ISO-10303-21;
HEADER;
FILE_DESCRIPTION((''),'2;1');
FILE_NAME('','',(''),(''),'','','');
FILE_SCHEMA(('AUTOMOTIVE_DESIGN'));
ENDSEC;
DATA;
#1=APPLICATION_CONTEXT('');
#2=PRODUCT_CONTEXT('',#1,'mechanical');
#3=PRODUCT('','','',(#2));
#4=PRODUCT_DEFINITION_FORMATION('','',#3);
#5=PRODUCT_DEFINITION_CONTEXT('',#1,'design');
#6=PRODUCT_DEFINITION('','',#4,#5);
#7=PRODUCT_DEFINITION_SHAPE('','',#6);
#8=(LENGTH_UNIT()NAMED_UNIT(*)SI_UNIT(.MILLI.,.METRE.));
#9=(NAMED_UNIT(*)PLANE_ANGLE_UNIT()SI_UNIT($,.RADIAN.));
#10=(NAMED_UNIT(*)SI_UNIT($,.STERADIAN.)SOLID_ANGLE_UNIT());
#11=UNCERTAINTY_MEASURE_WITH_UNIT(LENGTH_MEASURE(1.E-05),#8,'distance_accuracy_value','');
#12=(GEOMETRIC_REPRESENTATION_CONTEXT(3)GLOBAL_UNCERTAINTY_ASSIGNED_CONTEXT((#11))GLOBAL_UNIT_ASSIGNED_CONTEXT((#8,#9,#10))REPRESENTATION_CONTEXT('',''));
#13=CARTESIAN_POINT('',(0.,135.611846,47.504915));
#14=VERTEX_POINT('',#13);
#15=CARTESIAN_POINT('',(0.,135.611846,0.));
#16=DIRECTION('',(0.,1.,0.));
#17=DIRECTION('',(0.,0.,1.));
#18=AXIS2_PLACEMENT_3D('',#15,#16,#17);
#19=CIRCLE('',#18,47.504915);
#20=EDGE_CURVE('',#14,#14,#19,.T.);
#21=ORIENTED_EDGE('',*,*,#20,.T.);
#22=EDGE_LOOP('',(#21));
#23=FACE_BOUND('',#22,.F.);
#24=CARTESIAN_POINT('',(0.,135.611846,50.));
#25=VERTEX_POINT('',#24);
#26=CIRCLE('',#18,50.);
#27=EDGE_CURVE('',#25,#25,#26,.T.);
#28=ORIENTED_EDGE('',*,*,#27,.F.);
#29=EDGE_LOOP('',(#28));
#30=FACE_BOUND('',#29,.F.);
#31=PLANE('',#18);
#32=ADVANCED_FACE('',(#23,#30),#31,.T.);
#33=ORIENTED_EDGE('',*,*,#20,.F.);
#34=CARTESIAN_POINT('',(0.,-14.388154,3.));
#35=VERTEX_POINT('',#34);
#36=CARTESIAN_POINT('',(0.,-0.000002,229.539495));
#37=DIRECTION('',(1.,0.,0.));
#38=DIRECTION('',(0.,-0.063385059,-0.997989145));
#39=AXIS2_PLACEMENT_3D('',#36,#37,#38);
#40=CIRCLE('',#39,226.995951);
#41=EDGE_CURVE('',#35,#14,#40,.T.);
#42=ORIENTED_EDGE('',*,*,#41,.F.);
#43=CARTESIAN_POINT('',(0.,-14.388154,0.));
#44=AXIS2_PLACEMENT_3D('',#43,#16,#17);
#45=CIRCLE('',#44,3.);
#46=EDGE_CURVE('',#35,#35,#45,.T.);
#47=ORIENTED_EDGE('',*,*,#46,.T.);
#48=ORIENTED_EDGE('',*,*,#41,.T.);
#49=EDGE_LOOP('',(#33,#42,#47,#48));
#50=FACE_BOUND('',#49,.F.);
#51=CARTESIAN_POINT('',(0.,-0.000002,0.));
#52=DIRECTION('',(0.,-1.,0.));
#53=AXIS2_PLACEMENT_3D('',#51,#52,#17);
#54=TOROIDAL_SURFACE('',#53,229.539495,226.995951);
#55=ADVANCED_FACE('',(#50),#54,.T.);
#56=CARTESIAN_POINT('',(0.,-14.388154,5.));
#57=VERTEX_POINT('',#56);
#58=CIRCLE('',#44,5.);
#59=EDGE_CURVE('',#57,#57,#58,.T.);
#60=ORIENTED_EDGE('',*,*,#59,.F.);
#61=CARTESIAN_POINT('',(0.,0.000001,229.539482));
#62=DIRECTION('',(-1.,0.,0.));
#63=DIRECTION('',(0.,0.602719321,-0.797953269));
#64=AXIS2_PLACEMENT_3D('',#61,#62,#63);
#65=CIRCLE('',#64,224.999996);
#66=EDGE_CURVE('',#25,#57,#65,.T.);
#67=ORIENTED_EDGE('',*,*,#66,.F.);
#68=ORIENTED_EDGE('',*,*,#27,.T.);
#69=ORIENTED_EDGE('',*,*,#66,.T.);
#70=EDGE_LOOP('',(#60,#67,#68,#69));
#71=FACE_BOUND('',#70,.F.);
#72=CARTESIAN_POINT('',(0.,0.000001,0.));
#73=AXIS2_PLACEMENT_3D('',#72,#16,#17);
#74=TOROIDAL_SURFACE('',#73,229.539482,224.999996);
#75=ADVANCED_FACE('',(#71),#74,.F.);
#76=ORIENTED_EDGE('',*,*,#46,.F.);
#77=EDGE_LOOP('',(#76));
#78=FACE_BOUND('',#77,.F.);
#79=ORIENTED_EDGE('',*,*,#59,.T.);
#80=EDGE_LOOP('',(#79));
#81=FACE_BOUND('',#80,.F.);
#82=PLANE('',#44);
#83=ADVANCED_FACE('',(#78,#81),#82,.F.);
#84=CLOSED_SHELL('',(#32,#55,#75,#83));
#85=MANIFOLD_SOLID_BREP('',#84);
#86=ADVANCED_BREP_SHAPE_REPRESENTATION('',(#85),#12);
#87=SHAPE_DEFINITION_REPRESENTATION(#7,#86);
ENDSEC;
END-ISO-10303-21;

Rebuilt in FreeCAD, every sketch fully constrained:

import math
import FreeCAD as App
import Part
import Sketcher

V = App.Vector

doc = App.newDocument("Part")
body = doc.addObject("PartDesign::Body", "Body")

sketch1 = body.newObject("Sketcher::SketchObject", "Sketch")
sketch1.AttachmentSupport = (doc.getObject("YZ_Plane"), [""])
sketch1.MapMode = "FlatFace"
sketch1.addGeometry(Part.LineSegment(V(-14.4, 5, 0), V(-14.4, 3, 0)), False)
sketch1.addGeometry(Part.ArcOfCircle(Part.Circle(V(0, 229.5, 0), V(0, 0, 1), 227), math.radians(-94), math.radians(-53)), False)
sketch1.addGeometry(Part.LineSegment(V(135.6, 47.5, 0), V(135.6, 50, 0)), False)
sketch1.addGeometry(Part.ArcOfCircle(Part.Circle(V(0, 229.5, 0), V(0, 0, 1), 225), math.radians(-94), math.radians(-53)), False)
sketch1.addConstraint(Sketcher.Constraint("Coincident", 0, 2, 1, 1))
sketch1.addConstraint(Sketcher.Constraint("Coincident", 1, 2, 2, 1))
sketch1.addConstraint(Sketcher.Constraint("Coincident", 2, 2, 3, 2))
sketch1.addConstraint(Sketcher.Constraint("Coincident", 3, 1, 0, 1))
sketch1.addConstraint(Sketcher.Constraint("Vertical", 0))
sketch1.addConstraint(Sketcher.Constraint("Vertical", 2))
sketch1.addConstraint(Sketcher.Constraint("PointOnObject", 3, 3, -2))
sketch1.addConstraint(Sketcher.Constraint("DistanceY", 0, 2, 0, 1, 2.0))
sketch1.addConstraint(Sketcher.Constraint("DistanceY", -1, 1, 0, 2, 3.0))
sketch1.addConstraint(Sketcher.Constraint("DistanceY", -1, 1, 2, 2, 50.0))
sketch1.addConstraint(Sketcher.Constraint("DistanceX", 0, 2, 1, 2, 150.0))
sketch1.addConstraint(Sketcher.Constraint("Radius", 1, 226.995951))
sketch1.addConstraint(Sketcher.Constraint("Radius", 3, 224.999996))
sketch1.addConstraint(Sketcher.Constraint("DistanceY", 2, 1, 2, 2, 2.495085))
revolution = body.newObject("PartDesign::Revolution", "Revolution")
revolution.Profile = sketch1
revolution.ReferenceAxis = (sketch1, ["H_Axis"])
revolution.Angle = 360

doc.recompute()
